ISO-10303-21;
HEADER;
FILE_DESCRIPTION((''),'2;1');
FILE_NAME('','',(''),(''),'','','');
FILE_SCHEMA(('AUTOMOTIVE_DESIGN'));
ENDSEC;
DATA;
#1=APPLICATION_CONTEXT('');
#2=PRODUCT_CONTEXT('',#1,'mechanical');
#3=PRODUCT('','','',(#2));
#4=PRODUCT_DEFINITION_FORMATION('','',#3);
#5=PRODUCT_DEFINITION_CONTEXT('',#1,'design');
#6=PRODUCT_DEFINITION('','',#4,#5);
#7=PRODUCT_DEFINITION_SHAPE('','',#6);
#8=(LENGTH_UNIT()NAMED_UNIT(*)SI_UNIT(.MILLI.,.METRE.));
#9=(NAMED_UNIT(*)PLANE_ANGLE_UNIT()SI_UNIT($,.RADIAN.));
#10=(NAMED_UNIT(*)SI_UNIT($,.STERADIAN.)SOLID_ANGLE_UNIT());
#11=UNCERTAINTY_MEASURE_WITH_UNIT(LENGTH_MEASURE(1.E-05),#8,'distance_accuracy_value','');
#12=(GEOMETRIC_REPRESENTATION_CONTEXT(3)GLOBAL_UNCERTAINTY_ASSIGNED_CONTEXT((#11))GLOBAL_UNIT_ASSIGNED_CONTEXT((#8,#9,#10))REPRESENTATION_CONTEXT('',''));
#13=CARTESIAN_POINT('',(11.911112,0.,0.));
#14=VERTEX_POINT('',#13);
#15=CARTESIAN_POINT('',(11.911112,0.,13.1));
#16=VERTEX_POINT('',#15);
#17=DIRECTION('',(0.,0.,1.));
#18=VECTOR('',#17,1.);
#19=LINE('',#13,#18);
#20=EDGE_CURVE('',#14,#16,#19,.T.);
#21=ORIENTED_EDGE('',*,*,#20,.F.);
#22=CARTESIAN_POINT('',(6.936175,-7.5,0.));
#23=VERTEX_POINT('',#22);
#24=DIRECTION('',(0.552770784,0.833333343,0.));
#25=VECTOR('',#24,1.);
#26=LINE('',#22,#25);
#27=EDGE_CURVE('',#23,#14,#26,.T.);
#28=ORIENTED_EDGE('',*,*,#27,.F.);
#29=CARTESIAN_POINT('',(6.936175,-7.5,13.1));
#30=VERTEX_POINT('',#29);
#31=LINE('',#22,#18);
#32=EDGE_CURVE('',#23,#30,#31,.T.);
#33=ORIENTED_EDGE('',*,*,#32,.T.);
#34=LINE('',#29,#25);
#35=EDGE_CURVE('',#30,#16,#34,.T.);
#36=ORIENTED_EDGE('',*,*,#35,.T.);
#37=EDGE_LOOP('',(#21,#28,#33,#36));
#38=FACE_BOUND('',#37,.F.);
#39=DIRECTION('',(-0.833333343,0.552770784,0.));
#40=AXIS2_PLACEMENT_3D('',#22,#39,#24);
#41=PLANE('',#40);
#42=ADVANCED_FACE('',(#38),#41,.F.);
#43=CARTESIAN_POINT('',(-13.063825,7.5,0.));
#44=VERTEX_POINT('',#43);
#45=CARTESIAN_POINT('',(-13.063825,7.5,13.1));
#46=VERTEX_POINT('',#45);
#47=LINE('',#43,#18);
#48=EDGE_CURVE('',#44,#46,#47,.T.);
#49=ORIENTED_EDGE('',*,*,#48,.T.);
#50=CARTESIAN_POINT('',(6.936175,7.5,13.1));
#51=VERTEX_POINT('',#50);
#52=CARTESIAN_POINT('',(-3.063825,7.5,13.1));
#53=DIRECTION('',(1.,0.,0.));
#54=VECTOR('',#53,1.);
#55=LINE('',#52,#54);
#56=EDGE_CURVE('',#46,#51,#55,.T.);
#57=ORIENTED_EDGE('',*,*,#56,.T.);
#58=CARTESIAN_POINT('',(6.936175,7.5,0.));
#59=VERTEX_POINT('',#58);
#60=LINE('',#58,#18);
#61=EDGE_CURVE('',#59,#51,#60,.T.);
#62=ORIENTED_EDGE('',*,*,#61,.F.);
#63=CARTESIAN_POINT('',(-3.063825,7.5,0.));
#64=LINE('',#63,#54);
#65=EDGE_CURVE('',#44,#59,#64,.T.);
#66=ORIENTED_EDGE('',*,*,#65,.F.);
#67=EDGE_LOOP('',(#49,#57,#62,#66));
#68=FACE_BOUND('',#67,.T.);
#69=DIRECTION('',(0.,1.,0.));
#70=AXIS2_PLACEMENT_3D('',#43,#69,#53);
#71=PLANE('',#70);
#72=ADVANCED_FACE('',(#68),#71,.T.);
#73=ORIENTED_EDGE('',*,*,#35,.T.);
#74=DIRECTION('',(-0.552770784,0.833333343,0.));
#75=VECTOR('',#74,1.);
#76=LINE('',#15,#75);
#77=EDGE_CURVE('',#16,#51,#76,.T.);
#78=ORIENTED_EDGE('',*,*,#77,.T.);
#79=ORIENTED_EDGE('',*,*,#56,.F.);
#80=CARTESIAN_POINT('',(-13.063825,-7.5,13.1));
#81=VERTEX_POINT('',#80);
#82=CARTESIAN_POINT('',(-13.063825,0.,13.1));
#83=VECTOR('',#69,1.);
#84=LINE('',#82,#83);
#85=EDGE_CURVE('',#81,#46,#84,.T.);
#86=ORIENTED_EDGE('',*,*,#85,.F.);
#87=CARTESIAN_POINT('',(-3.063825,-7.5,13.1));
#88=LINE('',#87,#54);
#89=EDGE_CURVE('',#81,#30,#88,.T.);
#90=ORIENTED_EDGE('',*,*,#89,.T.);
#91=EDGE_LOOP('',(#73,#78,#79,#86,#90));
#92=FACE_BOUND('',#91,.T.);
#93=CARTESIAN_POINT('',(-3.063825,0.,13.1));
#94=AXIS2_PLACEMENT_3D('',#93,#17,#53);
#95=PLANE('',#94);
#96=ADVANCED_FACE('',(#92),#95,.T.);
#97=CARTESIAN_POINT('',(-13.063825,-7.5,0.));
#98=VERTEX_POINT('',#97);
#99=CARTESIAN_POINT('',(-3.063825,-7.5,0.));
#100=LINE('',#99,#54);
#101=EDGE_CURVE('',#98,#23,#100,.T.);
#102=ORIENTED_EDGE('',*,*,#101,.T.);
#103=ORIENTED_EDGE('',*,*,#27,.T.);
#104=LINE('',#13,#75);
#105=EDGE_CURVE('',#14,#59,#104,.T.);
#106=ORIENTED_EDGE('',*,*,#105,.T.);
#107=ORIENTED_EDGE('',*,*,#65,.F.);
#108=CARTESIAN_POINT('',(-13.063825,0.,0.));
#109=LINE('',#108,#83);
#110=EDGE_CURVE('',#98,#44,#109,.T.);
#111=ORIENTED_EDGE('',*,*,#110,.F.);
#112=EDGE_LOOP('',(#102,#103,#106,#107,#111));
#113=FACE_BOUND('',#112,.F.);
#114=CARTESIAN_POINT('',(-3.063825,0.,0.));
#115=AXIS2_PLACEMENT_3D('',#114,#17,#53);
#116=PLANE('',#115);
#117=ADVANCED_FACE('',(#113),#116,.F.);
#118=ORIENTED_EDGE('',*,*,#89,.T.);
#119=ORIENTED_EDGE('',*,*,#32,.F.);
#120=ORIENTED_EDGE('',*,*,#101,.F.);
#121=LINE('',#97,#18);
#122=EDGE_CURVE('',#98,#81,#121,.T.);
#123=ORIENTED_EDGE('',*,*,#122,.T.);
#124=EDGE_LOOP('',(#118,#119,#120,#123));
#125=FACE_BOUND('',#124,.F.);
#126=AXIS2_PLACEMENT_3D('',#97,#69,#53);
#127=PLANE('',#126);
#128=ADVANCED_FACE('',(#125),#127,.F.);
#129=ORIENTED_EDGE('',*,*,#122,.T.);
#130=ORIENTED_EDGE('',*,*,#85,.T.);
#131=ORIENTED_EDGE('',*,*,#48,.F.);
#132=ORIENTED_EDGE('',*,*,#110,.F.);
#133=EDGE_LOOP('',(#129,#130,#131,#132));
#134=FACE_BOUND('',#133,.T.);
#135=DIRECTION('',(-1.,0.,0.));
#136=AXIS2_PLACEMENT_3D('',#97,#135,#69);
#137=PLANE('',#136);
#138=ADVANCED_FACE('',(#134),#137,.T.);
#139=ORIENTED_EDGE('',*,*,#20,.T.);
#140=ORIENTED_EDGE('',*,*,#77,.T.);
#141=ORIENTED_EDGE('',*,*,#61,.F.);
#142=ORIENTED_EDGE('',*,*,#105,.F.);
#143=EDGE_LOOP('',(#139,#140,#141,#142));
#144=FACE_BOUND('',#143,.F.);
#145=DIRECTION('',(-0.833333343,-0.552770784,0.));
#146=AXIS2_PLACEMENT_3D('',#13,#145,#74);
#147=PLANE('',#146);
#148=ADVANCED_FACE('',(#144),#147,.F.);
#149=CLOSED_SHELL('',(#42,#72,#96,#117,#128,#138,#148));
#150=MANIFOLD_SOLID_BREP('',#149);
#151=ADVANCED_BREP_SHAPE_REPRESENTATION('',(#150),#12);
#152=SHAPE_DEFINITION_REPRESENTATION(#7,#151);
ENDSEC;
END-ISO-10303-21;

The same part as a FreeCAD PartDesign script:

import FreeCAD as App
import Part
import Sketcher


def add_polygon(sketch, points):
    """Adds a closed chain of lines whose ends are joined by coincident constraints."""
    first, n = sketch.GeometryCount, len(points)
    for a, b in zip(points, points[1:] + points[:1]):
        sketch.addGeometry(Part.LineSegment(App.Vector(*a, 0), App.Vector(*b, 0)), False)
    for i in range(n):
        sketch.addConstraint(Sketcher.Constraint("Coincident", first + i, 2, first + (i + 1) % n, 1))

doc = App.newDocument("Part")
body = doc.addObject("PartDesign::Body", "Body")

# Sketch on XY plane
sketch1 = body.newObject("Sketcher::SketchObject", "Sketch")
sketch1.AttachmentSupport = (doc.getObject("XY_Plane"), [""])
sketch1.MapMode = "FlatFace"
add_polygon(sketch1, [(-13, 8), (-13, -8), (7, -8), (12, 0), (7, 8)])  # lines 0-4
sketch1.addConstraint([
    Sketcher.Constraint("Vertical", 0),
    Sketcher.Constraint("Horizontal", 1),
    Sketcher.Constraint("Horizontal", 4),
    Sketcher.Constraint("Symmetric", 1, 2, 3, 2, -1),
    Sketcher.Constraint("PointOnObject", 2, 2, -1),
    Sketcher.Constraint("DistanceX", 1, 1, 1, 2, 20.0),
    Sketcher.Constraint("DistanceY", 0, 2, 0, 1, 15.0),
    Sketcher.Constraint("Distance", 2, 9.0),
    Sketcher.Constraint("DistanceX", -1, 1, 2, 2, 11.911112),
])
pad1 = body.newObject("PartDesign::Pad", "Pad")
pad1.Profile = sketch1
pad1.Length = 13.1

doc.recompute()
